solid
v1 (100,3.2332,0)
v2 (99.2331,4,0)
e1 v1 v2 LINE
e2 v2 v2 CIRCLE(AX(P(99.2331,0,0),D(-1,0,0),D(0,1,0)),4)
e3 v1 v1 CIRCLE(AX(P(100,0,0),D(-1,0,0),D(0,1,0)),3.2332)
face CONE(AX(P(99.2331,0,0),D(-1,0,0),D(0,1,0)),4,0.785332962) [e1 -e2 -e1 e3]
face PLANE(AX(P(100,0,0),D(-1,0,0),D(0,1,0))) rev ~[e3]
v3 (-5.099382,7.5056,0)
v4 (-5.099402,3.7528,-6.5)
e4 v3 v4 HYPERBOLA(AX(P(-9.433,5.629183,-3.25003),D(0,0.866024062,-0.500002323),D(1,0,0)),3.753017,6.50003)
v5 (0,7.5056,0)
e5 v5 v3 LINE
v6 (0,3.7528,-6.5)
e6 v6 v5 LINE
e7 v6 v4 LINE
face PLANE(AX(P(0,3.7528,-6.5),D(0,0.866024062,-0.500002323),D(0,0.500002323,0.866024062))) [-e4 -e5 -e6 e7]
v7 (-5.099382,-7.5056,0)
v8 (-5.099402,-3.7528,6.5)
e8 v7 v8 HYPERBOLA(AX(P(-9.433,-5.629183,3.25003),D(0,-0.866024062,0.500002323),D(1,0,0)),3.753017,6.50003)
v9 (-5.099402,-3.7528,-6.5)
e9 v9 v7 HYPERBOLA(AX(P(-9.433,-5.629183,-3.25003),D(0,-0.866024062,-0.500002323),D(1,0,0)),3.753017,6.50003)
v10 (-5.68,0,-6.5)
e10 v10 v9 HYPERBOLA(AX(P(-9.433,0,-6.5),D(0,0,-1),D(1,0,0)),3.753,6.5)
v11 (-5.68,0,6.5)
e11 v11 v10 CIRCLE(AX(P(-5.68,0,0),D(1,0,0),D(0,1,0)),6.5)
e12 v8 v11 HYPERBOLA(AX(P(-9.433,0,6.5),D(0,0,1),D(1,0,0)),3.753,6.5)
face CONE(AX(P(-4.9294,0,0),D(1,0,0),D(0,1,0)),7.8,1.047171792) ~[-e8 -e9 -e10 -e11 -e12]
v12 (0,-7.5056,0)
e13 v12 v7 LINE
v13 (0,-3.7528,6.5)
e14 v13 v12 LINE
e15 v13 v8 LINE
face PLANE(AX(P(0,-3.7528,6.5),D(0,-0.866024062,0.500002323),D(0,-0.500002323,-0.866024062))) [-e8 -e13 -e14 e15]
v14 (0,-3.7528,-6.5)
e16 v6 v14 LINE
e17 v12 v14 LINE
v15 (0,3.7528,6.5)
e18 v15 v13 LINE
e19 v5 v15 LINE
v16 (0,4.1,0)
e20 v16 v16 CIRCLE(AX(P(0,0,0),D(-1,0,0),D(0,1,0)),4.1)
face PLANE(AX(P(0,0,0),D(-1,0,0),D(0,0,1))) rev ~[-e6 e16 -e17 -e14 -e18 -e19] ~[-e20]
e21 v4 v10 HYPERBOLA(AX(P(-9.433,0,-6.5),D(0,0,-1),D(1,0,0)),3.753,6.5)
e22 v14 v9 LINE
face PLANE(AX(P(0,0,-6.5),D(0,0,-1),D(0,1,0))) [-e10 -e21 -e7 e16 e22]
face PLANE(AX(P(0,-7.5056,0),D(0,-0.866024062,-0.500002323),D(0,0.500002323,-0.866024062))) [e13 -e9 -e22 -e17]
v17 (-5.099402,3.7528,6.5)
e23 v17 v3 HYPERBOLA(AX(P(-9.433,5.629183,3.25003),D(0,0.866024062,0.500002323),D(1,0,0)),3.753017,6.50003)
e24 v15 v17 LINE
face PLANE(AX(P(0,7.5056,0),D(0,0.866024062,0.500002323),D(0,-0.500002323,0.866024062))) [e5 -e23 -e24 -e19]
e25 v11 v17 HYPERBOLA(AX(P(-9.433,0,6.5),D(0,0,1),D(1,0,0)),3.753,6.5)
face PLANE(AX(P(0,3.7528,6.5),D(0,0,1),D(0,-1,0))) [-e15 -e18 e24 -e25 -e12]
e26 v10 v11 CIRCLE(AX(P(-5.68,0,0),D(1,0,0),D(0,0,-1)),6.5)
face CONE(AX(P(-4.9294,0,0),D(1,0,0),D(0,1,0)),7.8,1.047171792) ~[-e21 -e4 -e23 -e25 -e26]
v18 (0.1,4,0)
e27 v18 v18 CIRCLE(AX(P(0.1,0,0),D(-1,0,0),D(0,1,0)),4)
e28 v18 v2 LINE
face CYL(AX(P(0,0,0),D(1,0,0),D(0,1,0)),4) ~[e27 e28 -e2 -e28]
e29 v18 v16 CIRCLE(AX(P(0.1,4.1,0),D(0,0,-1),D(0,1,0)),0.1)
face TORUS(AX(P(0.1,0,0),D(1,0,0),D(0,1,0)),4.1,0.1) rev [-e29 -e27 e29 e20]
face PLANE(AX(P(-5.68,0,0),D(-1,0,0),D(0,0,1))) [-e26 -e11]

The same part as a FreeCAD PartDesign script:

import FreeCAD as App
import Part
import Sketcher
Q = App.Units.Quantity


def edges_at(feature, points):
    """Names of the edges that pass closest to the given points."""
    edges = feature.Shape.Edges
    near = lambda p: min(range(len(edges)), key=lambda i: edges[i].distToShape(Part.Vertex(*p))[0])
    return sorted({f"Edge{near(p) + 1}" for p in points})


def add_polygon(sketch, points):
    """Adds a closed chain of lines whose ends are joined by coincident constraints."""
    first, n = sketch.GeometryCount, len(points)
    for a, b in zip(points, points[1:] + points[:1]):
        sketch.addGeometry(Part.LineSegment(App.Vector(*a, 0), App.Vector(*b, 0)), False)
    for i in range(n):
        sketch.addConstraint(Sketcher.Constraint("Coincident", first + i, 2, first + (i + 1) % n, 1))

doc = App.newDocument("Part")
body = doc.addObject("PartDesign::Body", "Body")

# Sketch on XY plane
sketch1 = body.newObject("Sketcher::SketchObject", "Sketch")
sketch1.AttachmentSupport = (doc.getObject("XY_Plane"), [""])
sketch1.MapMode = "FlatFace"
add_polygon(sketch1, [(100, 4), (0, 4), (0, 0), (100, 0)])  # lines 0-3
sketch1.addConstraint([
    Sketcher.Constraint("Horizontal", 0),
    Sketcher.Constraint("Vertical", 1),
    Sketcher.Constraint("Horizontal", 2),
    Sketcher.Constraint("Vertical", 3),
    Sketcher.Constraint("Coincident", 1, 2, -1, 1),
    Sketcher.Constraint("DistanceX", 0, 2, 0, 1, Q("100 mm")),
    Sketcher.Constraint("DistanceY", 1, 2, 1, 1, Q("4 mm")),
])
revolution = body.newObject("PartDesign::Revolution", "Revolution")
revolution.Profile = sketch1
revolution.ReferenceAxis = (sketch1, ["H_Axis"])
revolution.Angle = 360

# Sketch on YZ plane
sketch2 = body.newObject("Sketcher::SketchObject", "Sketch001")
sketch2.AttachmentSupport = (doc.getObject("YZ_Plane"), [""])
sketch2.MapMode = "FlatFace"
add_polygon(sketch2, [(4, -6), (-4, -6), (-8, 0), (-4, 6), (4, 6), (8, 0)])  # lines 0-5
sketch2.addConstraint([
    Sketcher.Constraint("Horizontal", 0),
    Sketcher.Constraint("Horizontal", 3),
    Sketcher.Constraint("Symmetric", 0, 2, 3, 2, -1, 1),
    Sketcher.Constraint("Symmetric", 1, 2, 4, 2, -1, 1),
    Sketcher.Constraint("PointOnObject", 1, 2, -1),
    Sketcher.Constraint("Parallel", 2, 5),
    Sketcher.Constraint("Vertical", 0, 2, 2, 2),
    Sketcher.Constraint("DistanceY", 0, 2, 2, 2, Q("13 mm")),
    Sketcher.Constraint("Angle", 1, Q("120.0002 deg")),
    Sketcher.Constraint("DistanceX", 0, 2, 0, 1, Q("7.5056 mm")),
])
pad1 = body.newObject("PartDesign::Pad", "Pad")
pad1.Profile = sketch2
pad1.Length = 5.68
pad1.Reversed = True

# Sketch on XY plane
sketch3 = body.newObject("Sketcher::SketchObject", "Sketch002")
sketch3.AttachmentSupport = (doc.getObject("XY_Plane"), [""])
sketch3.MapMode = "FlatFace"
add_polygon(sketch3, [(-5.7, 6.5), (-4.9, 7.8), (-5.7, 7.8)])  # lines 0-2
sketch3.addConstraint([
    Sketcher.Constraint("Horizontal", 1),
    Sketcher.Constraint("Vertical", 2),
    Sketcher.Constraint("DistanceX", 1, 2, -1, 1, Q("5.68 mm")),
    Sketcher.Constraint("DistanceY", 2, 2, 2, 1, Q("1.3 mm")),
    Sketcher.Constraint("DistanceY", -1, 1, 0, 2, Q("7.8 mm")),
    Sketcher.Constraint("DistanceX", 1, 2, 1, 1, Q("0.7506 mm")),
])
groove = body.newObject("PartDesign::Groove", "Groove")
groove.Profile = sketch3
groove.ReferenceAxis = (sketch3, ["H_Axis"])
groove.Angle = 360
doc.recompute()

chamfer = body.newObject("PartDesign::Chamfer", "Chamfer")
chamfer.Base = (groove, edges_at(groove, [(100, -4, 0)]))
chamfer.ChamferType = "Two distances"
chamfer.Size = 0.7668
chamfer.Size2 = 0.7669
doc.recompute()

fillet = body.newObject("PartDesign::Fillet", "Fillet")
fillet.Base = (chamfer, edges_at(chamfer, [(0, -4, 0)]))
fillet.Radius = 0.1

doc.recompute()
